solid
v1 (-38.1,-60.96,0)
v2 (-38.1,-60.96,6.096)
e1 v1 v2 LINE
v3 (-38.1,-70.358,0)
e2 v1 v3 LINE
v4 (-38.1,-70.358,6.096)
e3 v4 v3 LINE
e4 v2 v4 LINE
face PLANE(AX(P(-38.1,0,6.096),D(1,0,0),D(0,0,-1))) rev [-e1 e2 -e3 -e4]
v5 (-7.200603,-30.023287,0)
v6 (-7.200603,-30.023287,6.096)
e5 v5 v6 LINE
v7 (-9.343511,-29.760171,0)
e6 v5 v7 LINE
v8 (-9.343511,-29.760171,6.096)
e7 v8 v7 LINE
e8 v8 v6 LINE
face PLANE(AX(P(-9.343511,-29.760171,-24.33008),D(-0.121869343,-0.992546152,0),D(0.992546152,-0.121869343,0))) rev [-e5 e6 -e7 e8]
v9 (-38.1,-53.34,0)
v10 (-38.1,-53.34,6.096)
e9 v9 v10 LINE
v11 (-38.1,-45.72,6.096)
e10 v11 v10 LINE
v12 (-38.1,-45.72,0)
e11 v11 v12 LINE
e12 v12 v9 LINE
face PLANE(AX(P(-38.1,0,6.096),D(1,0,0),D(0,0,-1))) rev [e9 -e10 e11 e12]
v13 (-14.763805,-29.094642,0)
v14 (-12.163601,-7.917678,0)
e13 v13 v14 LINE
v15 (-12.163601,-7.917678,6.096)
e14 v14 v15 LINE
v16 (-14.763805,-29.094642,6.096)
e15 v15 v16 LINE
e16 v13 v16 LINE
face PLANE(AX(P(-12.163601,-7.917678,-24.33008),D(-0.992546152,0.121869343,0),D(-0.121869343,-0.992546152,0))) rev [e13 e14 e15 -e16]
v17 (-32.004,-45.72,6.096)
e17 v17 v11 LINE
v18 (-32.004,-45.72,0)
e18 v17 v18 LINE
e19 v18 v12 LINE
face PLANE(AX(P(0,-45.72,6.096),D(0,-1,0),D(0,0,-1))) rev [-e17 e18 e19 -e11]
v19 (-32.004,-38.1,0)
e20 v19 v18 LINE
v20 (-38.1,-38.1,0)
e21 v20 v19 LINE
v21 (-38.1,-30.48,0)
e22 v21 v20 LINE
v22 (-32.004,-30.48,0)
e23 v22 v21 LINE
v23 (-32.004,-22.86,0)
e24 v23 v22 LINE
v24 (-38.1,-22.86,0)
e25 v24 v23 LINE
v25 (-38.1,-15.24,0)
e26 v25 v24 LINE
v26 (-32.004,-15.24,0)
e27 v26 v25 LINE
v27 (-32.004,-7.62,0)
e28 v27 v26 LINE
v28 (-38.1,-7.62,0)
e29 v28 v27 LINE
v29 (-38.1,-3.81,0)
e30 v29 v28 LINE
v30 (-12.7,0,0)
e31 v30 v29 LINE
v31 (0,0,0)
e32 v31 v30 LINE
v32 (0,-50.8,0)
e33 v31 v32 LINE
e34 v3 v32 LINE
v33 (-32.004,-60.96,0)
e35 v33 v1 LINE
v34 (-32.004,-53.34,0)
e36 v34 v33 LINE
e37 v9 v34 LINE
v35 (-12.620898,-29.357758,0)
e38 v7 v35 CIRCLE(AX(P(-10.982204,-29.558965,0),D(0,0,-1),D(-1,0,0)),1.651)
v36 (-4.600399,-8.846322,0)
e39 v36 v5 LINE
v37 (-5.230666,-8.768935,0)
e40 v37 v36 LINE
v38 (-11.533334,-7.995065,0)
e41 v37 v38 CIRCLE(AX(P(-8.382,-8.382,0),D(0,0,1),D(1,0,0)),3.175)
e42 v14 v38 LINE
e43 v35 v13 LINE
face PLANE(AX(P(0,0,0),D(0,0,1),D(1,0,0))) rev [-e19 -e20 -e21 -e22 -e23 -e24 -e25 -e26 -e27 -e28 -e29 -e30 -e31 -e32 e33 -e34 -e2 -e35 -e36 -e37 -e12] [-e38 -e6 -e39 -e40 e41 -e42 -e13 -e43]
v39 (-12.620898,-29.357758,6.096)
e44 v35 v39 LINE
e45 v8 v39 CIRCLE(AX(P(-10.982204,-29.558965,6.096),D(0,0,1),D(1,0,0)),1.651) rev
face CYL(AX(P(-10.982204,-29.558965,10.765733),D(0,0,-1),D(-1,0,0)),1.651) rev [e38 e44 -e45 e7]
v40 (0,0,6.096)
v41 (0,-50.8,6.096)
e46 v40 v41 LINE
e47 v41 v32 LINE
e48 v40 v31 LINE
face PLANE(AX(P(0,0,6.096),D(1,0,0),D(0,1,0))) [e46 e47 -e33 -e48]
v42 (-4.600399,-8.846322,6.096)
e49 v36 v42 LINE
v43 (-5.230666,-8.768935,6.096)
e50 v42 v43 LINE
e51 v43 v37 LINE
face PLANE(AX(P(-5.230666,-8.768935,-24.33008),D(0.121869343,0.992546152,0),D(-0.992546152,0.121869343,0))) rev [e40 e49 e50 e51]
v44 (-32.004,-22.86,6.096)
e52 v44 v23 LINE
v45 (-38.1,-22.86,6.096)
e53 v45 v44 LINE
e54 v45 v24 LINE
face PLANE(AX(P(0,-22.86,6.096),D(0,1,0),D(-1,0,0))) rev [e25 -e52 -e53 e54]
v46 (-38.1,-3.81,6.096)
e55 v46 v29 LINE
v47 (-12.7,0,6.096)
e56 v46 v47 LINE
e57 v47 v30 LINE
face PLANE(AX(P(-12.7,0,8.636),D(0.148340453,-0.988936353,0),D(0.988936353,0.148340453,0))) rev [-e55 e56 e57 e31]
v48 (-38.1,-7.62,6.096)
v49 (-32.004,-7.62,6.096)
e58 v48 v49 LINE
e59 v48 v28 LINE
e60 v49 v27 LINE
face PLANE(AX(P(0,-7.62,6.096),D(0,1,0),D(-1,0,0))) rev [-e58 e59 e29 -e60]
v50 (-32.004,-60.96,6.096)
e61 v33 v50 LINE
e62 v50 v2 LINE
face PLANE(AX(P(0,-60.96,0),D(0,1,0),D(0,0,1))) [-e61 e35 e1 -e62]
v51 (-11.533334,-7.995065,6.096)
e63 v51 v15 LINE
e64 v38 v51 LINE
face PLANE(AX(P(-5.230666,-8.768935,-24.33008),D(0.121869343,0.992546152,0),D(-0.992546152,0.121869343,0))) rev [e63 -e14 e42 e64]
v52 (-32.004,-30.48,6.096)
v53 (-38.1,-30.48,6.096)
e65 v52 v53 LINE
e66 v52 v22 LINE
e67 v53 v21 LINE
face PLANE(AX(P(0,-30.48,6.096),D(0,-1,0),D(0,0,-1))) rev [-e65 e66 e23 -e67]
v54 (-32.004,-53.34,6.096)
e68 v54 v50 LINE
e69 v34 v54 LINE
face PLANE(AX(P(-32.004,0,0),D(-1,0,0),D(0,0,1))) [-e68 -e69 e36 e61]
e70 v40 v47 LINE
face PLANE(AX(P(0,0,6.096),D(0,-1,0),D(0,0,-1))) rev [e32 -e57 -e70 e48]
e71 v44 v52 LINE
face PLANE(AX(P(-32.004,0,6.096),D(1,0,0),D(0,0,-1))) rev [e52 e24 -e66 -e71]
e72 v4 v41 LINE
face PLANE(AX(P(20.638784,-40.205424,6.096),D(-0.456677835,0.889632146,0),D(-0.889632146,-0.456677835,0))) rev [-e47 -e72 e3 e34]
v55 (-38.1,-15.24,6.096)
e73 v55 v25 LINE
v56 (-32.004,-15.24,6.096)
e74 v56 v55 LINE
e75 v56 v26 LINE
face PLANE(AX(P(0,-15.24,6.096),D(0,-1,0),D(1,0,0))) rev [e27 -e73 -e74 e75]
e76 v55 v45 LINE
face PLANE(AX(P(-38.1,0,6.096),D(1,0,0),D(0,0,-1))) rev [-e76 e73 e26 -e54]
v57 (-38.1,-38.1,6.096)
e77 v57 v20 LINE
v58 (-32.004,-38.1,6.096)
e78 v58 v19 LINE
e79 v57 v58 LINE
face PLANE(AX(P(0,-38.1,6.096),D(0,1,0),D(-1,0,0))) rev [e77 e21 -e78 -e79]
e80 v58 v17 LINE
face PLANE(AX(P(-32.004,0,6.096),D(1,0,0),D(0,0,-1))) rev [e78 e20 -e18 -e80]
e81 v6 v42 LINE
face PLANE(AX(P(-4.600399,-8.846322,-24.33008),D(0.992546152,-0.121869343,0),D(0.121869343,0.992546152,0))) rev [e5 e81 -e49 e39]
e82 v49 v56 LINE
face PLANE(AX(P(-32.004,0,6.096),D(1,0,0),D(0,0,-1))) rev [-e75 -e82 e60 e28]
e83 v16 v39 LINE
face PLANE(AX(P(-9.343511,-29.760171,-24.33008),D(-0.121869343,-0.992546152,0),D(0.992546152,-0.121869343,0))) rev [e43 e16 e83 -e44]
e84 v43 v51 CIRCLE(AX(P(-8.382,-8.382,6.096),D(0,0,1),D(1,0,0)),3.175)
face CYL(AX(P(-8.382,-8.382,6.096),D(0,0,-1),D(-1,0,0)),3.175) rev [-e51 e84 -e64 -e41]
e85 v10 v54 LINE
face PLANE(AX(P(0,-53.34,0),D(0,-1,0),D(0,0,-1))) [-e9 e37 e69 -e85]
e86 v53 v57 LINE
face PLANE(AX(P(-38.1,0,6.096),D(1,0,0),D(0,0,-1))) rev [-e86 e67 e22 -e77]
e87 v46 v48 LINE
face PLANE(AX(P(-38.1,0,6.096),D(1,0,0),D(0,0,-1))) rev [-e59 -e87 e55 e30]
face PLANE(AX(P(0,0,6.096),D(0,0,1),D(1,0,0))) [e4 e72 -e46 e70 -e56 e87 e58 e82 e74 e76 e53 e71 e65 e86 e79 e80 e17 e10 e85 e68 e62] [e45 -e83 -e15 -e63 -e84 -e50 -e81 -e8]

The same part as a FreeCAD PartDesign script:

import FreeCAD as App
import Part
import Sketcher

V = App.Vector
Q = App.Units.Quantity

doc = App.newDocument("Part")
body = doc.addObject("PartDesign::Body", "Body")

sketch1 = doc.addObject("Sketcher::SketchObject", "Sketch")
body.addObject(sketch1)
sketch1.AttachmentSupport = (doc.XY_Plane, [""])
sketch1.MapMode = "FlatFace"
sketch1.addGeometry([
    Part.LineSegment(V(0, 0, 0), V(-38.1, 0, 0)),
    Part.LineSegment(V(-38.1, 0, 0), V(-38.1, -7.6, 0)),
    Part.LineSegment(V(-38.1, -7.6, 0), V(-32, -7.6, 0)),
    Part.LineSegment(V(-32, -7.6, 0), V(-32, -15.2, 0)),
    Part.LineSegment(V(-32, -15.2, 0), V(-38.1, -15.2, 0)),
    Part.LineSegment(V(-38.1, -15.2, 0), V(-38.1, -22.9, 0)),
    Part.LineSegment(V(-38.1, -22.9, 0), V(-32, -22.9, 0)),
    Part.LineSegment(V(-32, -22.9, 0), V(-32, -30.5, 0)),
    Part.LineSegment(V(-32, -30.5, 0), V(-38.1, -30.5, 0)),
    Part.LineSegment(V(-38.1, -30.5, 0), V(-38.1, -38.1, 0)),
    Part.LineSegment(V(-38.1, -38.1, 0), V(-32, -38.1, 0)),
    Part.LineSegment(V(-32, -38.1, 0), V(-32, -45.7, 0)),
    Part.LineSegment(V(-32, -45.7, 0), V(-38.1, -45.7, 0)),
    Part.LineSegment(V(-38.1, -45.7, 0), V(-38.1, -70.4, 0)),
    Part.LineSegment(V(-38.1, -70.4, 0), V(0, -50.8, 0)),
    Part.LineSegment(V(0, -50.8, 0), V(0, 0, 0)),
    Part.Circle(V(-8.4, -8.4, 0), V(0, 0, 1), 3.2),
], False)
sketch1.addConstraint([
    Sketcher.Constraint("Coincident", 0, 2, 1, 1),
    Sketcher.Constraint("Coincident", 1, 2, 2, 1),
    Sketcher.Constraint("Coincident", 2, 2, 3, 1),
    Sketcher.Constraint("Coincident", 3, 2, 4, 1),
    Sketcher.Constraint("Coincident", 4, 2, 5, 1),
    Sketcher.Constraint("Coincident", 5, 2, 6, 1),
    Sketcher.Constraint("Coincident", 6, 2, 7, 1),
    Sketcher.Constraint("Coincident", 7, 2, 8, 1),
    Sketcher.Constraint("Coincident", 8, 2, 9, 1),
    Sketcher.Constraint("Coincident", 9, 2, 10, 1),
    Sketcher.Constraint("Coincident", 10, 2, 11, 1),
    Sketcher.Constraint("Coincident", 11, 2, 12, 1),
    Sketcher.Constraint("Coincident", 12, 2, 13, 1),
    Sketcher.Constraint("Coincident", 13, 2, 14, 1),
    Sketcher.Constraint("Coincident", 14, 2, 15, 1),
    Sketcher.Constraint("Coincident", 15, 2, 0, 1),
    Sketcher.Constraint("Horizontal", 0),
    Sketcher.Constraint("Vertical", 1),
    Sketcher.Constraint("Horizontal", 2),
    Sketcher.Constraint("Vertical", 3),
    Sketcher.Constraint("Horizontal", 4),
    Sketcher.Constraint("Vertical", 5),
    Sketcher.Constraint("Horizontal", 6),
    Sketcher.Constraint("Vertical", 7),
    Sketcher.Constraint("Horizontal", 8),
    Sketcher.Constraint("Vertical", 9),
    Sketcher.Constraint("Horizontal", 10),
    Sketcher.Constraint("Vertical", 11),
    Sketcher.Constraint("Horizontal", 12),
    Sketcher.Constraint("Vertical", 13),
    Sketcher.Constraint("Vertical", 15),
    Sketcher.Constraint("Coincident", 15, 2, -1, 1),
    Sketcher.Constraint("Vertical", 1, 2, 4, 2),
    Sketcher.Constraint("Vertical", 3, 2, 6, 2),
    Sketcher.Constraint("Vertical", 5, 2, 8, 2),
    Sketcher.Constraint("Vertical", 7, 2, 10, 2),
    Sketcher.Constraint("Vertical", 9, 2, 12, 2),
    Sketcher.Constraint("Equal", 1, 3),
    Sketcher.Constraint("Equal", 3, 5),
    Sketcher.Constraint("Equal", 5, 7),
    Sketcher.Constraint("Equal", 7, 9),
    Sketcher.Constraint("Equal", 9, 11),
    Sketcher.Constraint("Diameter", 16, Q("0.25 in")),
    Sketcher.Constraint("DistanceY", 15, 1, 15, 2, Q("2 in")),
    Sketcher.Constraint("DistanceX", 0, 2, 0, 1, Q("1.5 in")),
    Sketcher.Constraint("DistanceY", 1, 2, 1, 1, Q("0.3 in")),
    Sketcher.Constraint("DistanceX", 2, 1, 2, 2, Q("0.24 in")),
    Sketcher.Constraint("DistanceY", 13, 2, 13, 1, Q("0.97 in")),
    Sketcher.Constraint("DistanceX", 16, 3, -1, 1, Q("0.33 in")),
    Sketcher.Constraint("DistanceY", 16, 3, -1, 1, Q("0.33 in")),
])
pad1 = doc.addObject("PartDesign::Pad", "Pad")
body.addObject(pad1)
pad1.Profile = sketch1
pad1.Length = Q("0.24 in")

sketch2 = doc.addObject("Sketcher::SketchObject", "Sketch001")
body.addObject(sketch2)
sketch2.AttachmentSupport = (doc.XY_Plane, [""])
sketch2.MapMode = "FlatFace"
sketch2.addGeometry([
    Part.LineSegment(V(-38.1, 0, 0), V(-12.7, 0, 0)),
    Part.LineSegment(V(-12.7, 0, 0), V(-38.1, -3.8, 0)),
    Part.LineSegment(V(-38.1, -3.8, 0), V(-38.1, 0, 0)),
], False)
sketch2.addConstraint([
    Sketcher.Constraint("Coincident", 0, 2, 1, 1),
    Sketcher.Constraint("Coincident", 1, 2, 2, 1),
    Sketcher.Constraint("Coincident", 2, 2, 0, 1),
    Sketcher.Constraint("Horizontal", 0),
    Sketcher.Constraint("Vertical", 2),
    Sketcher.Constraint("PointOnObject", 0, 2, -1),
    Sketcher.Constraint("DistanceX", 0, 1, 0, 2, Q("1 in")),
    Sketcher.Constraint("DistanceY", 2, 1, 2, 2, Q("0.15 in")),
    Sketcher.Constraint("DistanceX", 0, 2, -1, 1, Q("0.5 in")),
])
pocket1 = doc.addObject("PartDesign::Pocket", "Pocket")
body.addObject(pocket1)
pocket1.Profile = sketch2
pocket1.Length = Q("0.34 in")
pocket1.Reversed = True

sketch3 = doc.addObject("Sketcher::SketchObject", "Sketch002")
body.addObject(sketch3)
sketch3.AttachmentSupport = (doc.XY_Plane, [""])
sketch3.MapMode = "FlatFace"
sketch3.AttachmentOffset = App.Placement(V(0, 0, 0.24 * 25.4), App.Rotation())
sketch3.addGeometry([
    Part.LineSegment(V(-38, -53, 0), V(-38, -61, 0)),
    Part.LineSegment(V(-38, -61, 0), V(-32, -61, 0)),
    Part.LineSegment(V(-32, -61, 0), V(-32, -53, 0)),
    Part.LineSegment(V(-32, -53, 0), V(-38, -53, 0)),
], False)
sketch3.addConstraint([
    Sketcher.Constraint("Coincident", 0, 2, 1, 1),
    Sketcher.Constraint("Coincident", 1, 2, 2, 1),
    Sketcher.Constraint("Coincident", 2, 2, 3, 1),
    Sketcher.Constraint("Coincident", 3, 2, 0, 1),
    Sketcher.Constraint("Vertical", 0),
    Sketcher.Constraint("Horizontal", 1),
    Sketcher.Constraint("Vertical", 2),
    Sketcher.Constraint("Horizontal", 3),
    Sketcher.Constraint("DistanceY", 0, 2, 0, 1, Q("0.3 in")),
    Sketcher.Constraint("DistanceX", 1, 1, 1, 2, Q("0.24 in")),
    Sketcher.Constraint("DistanceX", 0, 2, -1, 1, Q("1.5 in")),
    Sketcher.Constraint("DistanceY", 0, 2, -1, 1, Q("2.4 in")),
])
pocket2 = doc.addObject("PartDesign::Pocket", "Pocket001")
body.addObject(pocket2)
pocket2.Profile = sketch3
pocket2.Type = "ThroughAll"

sketch4 = doc.addObject("Sketcher::SketchObject", "Sketch003")
body.addObject(sketch4)
sketch4.AttachmentSupport = (doc.XY_Plane, [""])
sketch4.MapMode = "FlatFace"
sketch4.addGeometry(Part.Circle(V(-11, -29.6, 0), V(0, 0, 1), 1.7), False)
sketch4.addConstraint([
    Sketcher.Constraint("Diameter", 0, Q("0.13 in")),
    Sketcher.Constraint("DistanceX", 0, 3, -1, 1, Q("10.982204 mm")),
    Sketcher.Constraint("DistanceY", 0, 3, -1, 1, Q("29.558965 mm")),
])
pocket3 = doc.addObject("PartDesign::Pocket", "Pocket002")
body.addObject(pocket3)
pocket3.Profile = sketch4
pocket3.Length = Q("0.24 in")
pocket3.Reversed = True

sketch5 = doc.addObject("Sketcher::SketchObject", "Sketch004")
body.addObject(sketch5)
sketch5.AttachmentSupport = (doc.XY_Plane, [""])
sketch5.MapMode = "FlatFace"
sketch5.AttachmentOffset = App.Placement(V(0, 0, 0.24 * 25.4), App.Rotation())
sketch5.addGeometry([
    Part.LineSegment(V(-4.6, -8.8, 0), V(-5.2, -8.8, 0)),
    Part.LineSegment(V(-5.2, -8.8, 0), V(-11.5, -8, 0)),
    Part.LineSegment(V(-11.5, -8, 0), V(-12.2, -7.9, 0)),
    Part.LineSegment(V(-12.2, -7.9, 0), V(-14.8, -29.1, 0)),
    Part.LineSegment(V(-14.8, -29.1, 0), V(-12.6, -29.4, 0)),
    Part.LineSegment(V(-12.6, -29.4, 0), V(-9.3, -29.8, 0)),
    Part.LineSegment(V(-9.3, -29.8, 0), V(-7.2, -30, 0)),
    Part.LineSegment(V(-7.2, -30, 0), V(-4.6, -8.8, 0)),
], False)
sketch5.addConstraint([
    Sketcher.Constraint("Coincident", 0, 2, 1, 1),
    Sketcher.Constraint("Coincident", 1, 2, 2, 1),
    Sketcher.Constraint("Coincident", 2, 2, 3, 1),
    Sketcher.Constraint("Coincident", 3, 2, 4, 1),
    Sketcher.Constraint("Coincident", 4, 2, 5, 1),
    Sketcher.Constraint("Coincident", 5, 2, 6, 1),
    Sketcher.Constraint("Coincident", 6, 2, 7, 1),
    Sketcher.Constraint("Coincident", 7, 2, 0, 1),
    Sketcher.Constraint("Parallel", 0, 1),
    Sketcher.Constraint("Parallel", 1, 2),
    Sketcher.Constraint("Perpendicular", 2, 3),
    Sketcher.Constraint("Perpendicular", 3, 4),
    Sketcher.Constraint("Parallel", 4, 5),
    Sketcher.Constraint("Parallel", 5, 6),
    Sketcher.Constraint("Perpendicular", 6, 7),
    Sketcher.Constraint("Equal", 0, 2),
    Sketcher.Constraint("Equal", 4, 6),
    Sketcher.Constraint("Angle", 0, Q("173 deg")),
    Sketcher.Constraint("Distance", 1, Q("0.25 in")),
    Sketcher.Constraint("Distance", 3, Q("0.84 in")),
    Sketcher.Constraint("Distance", 5, Q("0.13 in")),
    Sketcher.Constraint("Distance", 0, Q("0.025 in")),
    Sketcher.Constraint("DistanceX", 2, 2, -1, 1, Q("12.163601 mm")),
    Sketcher.Constraint("DistanceY", 4, 2, -1, 1, Q("29.357758 mm")),
])
pocket4 = doc.addObject("PartDesign::Pocket", "Pocket003")
body.addObject(pocket4)
pocket4.Profile = sketch5
pocket4.Length = Q("0.24 in")

doc.recompute()
